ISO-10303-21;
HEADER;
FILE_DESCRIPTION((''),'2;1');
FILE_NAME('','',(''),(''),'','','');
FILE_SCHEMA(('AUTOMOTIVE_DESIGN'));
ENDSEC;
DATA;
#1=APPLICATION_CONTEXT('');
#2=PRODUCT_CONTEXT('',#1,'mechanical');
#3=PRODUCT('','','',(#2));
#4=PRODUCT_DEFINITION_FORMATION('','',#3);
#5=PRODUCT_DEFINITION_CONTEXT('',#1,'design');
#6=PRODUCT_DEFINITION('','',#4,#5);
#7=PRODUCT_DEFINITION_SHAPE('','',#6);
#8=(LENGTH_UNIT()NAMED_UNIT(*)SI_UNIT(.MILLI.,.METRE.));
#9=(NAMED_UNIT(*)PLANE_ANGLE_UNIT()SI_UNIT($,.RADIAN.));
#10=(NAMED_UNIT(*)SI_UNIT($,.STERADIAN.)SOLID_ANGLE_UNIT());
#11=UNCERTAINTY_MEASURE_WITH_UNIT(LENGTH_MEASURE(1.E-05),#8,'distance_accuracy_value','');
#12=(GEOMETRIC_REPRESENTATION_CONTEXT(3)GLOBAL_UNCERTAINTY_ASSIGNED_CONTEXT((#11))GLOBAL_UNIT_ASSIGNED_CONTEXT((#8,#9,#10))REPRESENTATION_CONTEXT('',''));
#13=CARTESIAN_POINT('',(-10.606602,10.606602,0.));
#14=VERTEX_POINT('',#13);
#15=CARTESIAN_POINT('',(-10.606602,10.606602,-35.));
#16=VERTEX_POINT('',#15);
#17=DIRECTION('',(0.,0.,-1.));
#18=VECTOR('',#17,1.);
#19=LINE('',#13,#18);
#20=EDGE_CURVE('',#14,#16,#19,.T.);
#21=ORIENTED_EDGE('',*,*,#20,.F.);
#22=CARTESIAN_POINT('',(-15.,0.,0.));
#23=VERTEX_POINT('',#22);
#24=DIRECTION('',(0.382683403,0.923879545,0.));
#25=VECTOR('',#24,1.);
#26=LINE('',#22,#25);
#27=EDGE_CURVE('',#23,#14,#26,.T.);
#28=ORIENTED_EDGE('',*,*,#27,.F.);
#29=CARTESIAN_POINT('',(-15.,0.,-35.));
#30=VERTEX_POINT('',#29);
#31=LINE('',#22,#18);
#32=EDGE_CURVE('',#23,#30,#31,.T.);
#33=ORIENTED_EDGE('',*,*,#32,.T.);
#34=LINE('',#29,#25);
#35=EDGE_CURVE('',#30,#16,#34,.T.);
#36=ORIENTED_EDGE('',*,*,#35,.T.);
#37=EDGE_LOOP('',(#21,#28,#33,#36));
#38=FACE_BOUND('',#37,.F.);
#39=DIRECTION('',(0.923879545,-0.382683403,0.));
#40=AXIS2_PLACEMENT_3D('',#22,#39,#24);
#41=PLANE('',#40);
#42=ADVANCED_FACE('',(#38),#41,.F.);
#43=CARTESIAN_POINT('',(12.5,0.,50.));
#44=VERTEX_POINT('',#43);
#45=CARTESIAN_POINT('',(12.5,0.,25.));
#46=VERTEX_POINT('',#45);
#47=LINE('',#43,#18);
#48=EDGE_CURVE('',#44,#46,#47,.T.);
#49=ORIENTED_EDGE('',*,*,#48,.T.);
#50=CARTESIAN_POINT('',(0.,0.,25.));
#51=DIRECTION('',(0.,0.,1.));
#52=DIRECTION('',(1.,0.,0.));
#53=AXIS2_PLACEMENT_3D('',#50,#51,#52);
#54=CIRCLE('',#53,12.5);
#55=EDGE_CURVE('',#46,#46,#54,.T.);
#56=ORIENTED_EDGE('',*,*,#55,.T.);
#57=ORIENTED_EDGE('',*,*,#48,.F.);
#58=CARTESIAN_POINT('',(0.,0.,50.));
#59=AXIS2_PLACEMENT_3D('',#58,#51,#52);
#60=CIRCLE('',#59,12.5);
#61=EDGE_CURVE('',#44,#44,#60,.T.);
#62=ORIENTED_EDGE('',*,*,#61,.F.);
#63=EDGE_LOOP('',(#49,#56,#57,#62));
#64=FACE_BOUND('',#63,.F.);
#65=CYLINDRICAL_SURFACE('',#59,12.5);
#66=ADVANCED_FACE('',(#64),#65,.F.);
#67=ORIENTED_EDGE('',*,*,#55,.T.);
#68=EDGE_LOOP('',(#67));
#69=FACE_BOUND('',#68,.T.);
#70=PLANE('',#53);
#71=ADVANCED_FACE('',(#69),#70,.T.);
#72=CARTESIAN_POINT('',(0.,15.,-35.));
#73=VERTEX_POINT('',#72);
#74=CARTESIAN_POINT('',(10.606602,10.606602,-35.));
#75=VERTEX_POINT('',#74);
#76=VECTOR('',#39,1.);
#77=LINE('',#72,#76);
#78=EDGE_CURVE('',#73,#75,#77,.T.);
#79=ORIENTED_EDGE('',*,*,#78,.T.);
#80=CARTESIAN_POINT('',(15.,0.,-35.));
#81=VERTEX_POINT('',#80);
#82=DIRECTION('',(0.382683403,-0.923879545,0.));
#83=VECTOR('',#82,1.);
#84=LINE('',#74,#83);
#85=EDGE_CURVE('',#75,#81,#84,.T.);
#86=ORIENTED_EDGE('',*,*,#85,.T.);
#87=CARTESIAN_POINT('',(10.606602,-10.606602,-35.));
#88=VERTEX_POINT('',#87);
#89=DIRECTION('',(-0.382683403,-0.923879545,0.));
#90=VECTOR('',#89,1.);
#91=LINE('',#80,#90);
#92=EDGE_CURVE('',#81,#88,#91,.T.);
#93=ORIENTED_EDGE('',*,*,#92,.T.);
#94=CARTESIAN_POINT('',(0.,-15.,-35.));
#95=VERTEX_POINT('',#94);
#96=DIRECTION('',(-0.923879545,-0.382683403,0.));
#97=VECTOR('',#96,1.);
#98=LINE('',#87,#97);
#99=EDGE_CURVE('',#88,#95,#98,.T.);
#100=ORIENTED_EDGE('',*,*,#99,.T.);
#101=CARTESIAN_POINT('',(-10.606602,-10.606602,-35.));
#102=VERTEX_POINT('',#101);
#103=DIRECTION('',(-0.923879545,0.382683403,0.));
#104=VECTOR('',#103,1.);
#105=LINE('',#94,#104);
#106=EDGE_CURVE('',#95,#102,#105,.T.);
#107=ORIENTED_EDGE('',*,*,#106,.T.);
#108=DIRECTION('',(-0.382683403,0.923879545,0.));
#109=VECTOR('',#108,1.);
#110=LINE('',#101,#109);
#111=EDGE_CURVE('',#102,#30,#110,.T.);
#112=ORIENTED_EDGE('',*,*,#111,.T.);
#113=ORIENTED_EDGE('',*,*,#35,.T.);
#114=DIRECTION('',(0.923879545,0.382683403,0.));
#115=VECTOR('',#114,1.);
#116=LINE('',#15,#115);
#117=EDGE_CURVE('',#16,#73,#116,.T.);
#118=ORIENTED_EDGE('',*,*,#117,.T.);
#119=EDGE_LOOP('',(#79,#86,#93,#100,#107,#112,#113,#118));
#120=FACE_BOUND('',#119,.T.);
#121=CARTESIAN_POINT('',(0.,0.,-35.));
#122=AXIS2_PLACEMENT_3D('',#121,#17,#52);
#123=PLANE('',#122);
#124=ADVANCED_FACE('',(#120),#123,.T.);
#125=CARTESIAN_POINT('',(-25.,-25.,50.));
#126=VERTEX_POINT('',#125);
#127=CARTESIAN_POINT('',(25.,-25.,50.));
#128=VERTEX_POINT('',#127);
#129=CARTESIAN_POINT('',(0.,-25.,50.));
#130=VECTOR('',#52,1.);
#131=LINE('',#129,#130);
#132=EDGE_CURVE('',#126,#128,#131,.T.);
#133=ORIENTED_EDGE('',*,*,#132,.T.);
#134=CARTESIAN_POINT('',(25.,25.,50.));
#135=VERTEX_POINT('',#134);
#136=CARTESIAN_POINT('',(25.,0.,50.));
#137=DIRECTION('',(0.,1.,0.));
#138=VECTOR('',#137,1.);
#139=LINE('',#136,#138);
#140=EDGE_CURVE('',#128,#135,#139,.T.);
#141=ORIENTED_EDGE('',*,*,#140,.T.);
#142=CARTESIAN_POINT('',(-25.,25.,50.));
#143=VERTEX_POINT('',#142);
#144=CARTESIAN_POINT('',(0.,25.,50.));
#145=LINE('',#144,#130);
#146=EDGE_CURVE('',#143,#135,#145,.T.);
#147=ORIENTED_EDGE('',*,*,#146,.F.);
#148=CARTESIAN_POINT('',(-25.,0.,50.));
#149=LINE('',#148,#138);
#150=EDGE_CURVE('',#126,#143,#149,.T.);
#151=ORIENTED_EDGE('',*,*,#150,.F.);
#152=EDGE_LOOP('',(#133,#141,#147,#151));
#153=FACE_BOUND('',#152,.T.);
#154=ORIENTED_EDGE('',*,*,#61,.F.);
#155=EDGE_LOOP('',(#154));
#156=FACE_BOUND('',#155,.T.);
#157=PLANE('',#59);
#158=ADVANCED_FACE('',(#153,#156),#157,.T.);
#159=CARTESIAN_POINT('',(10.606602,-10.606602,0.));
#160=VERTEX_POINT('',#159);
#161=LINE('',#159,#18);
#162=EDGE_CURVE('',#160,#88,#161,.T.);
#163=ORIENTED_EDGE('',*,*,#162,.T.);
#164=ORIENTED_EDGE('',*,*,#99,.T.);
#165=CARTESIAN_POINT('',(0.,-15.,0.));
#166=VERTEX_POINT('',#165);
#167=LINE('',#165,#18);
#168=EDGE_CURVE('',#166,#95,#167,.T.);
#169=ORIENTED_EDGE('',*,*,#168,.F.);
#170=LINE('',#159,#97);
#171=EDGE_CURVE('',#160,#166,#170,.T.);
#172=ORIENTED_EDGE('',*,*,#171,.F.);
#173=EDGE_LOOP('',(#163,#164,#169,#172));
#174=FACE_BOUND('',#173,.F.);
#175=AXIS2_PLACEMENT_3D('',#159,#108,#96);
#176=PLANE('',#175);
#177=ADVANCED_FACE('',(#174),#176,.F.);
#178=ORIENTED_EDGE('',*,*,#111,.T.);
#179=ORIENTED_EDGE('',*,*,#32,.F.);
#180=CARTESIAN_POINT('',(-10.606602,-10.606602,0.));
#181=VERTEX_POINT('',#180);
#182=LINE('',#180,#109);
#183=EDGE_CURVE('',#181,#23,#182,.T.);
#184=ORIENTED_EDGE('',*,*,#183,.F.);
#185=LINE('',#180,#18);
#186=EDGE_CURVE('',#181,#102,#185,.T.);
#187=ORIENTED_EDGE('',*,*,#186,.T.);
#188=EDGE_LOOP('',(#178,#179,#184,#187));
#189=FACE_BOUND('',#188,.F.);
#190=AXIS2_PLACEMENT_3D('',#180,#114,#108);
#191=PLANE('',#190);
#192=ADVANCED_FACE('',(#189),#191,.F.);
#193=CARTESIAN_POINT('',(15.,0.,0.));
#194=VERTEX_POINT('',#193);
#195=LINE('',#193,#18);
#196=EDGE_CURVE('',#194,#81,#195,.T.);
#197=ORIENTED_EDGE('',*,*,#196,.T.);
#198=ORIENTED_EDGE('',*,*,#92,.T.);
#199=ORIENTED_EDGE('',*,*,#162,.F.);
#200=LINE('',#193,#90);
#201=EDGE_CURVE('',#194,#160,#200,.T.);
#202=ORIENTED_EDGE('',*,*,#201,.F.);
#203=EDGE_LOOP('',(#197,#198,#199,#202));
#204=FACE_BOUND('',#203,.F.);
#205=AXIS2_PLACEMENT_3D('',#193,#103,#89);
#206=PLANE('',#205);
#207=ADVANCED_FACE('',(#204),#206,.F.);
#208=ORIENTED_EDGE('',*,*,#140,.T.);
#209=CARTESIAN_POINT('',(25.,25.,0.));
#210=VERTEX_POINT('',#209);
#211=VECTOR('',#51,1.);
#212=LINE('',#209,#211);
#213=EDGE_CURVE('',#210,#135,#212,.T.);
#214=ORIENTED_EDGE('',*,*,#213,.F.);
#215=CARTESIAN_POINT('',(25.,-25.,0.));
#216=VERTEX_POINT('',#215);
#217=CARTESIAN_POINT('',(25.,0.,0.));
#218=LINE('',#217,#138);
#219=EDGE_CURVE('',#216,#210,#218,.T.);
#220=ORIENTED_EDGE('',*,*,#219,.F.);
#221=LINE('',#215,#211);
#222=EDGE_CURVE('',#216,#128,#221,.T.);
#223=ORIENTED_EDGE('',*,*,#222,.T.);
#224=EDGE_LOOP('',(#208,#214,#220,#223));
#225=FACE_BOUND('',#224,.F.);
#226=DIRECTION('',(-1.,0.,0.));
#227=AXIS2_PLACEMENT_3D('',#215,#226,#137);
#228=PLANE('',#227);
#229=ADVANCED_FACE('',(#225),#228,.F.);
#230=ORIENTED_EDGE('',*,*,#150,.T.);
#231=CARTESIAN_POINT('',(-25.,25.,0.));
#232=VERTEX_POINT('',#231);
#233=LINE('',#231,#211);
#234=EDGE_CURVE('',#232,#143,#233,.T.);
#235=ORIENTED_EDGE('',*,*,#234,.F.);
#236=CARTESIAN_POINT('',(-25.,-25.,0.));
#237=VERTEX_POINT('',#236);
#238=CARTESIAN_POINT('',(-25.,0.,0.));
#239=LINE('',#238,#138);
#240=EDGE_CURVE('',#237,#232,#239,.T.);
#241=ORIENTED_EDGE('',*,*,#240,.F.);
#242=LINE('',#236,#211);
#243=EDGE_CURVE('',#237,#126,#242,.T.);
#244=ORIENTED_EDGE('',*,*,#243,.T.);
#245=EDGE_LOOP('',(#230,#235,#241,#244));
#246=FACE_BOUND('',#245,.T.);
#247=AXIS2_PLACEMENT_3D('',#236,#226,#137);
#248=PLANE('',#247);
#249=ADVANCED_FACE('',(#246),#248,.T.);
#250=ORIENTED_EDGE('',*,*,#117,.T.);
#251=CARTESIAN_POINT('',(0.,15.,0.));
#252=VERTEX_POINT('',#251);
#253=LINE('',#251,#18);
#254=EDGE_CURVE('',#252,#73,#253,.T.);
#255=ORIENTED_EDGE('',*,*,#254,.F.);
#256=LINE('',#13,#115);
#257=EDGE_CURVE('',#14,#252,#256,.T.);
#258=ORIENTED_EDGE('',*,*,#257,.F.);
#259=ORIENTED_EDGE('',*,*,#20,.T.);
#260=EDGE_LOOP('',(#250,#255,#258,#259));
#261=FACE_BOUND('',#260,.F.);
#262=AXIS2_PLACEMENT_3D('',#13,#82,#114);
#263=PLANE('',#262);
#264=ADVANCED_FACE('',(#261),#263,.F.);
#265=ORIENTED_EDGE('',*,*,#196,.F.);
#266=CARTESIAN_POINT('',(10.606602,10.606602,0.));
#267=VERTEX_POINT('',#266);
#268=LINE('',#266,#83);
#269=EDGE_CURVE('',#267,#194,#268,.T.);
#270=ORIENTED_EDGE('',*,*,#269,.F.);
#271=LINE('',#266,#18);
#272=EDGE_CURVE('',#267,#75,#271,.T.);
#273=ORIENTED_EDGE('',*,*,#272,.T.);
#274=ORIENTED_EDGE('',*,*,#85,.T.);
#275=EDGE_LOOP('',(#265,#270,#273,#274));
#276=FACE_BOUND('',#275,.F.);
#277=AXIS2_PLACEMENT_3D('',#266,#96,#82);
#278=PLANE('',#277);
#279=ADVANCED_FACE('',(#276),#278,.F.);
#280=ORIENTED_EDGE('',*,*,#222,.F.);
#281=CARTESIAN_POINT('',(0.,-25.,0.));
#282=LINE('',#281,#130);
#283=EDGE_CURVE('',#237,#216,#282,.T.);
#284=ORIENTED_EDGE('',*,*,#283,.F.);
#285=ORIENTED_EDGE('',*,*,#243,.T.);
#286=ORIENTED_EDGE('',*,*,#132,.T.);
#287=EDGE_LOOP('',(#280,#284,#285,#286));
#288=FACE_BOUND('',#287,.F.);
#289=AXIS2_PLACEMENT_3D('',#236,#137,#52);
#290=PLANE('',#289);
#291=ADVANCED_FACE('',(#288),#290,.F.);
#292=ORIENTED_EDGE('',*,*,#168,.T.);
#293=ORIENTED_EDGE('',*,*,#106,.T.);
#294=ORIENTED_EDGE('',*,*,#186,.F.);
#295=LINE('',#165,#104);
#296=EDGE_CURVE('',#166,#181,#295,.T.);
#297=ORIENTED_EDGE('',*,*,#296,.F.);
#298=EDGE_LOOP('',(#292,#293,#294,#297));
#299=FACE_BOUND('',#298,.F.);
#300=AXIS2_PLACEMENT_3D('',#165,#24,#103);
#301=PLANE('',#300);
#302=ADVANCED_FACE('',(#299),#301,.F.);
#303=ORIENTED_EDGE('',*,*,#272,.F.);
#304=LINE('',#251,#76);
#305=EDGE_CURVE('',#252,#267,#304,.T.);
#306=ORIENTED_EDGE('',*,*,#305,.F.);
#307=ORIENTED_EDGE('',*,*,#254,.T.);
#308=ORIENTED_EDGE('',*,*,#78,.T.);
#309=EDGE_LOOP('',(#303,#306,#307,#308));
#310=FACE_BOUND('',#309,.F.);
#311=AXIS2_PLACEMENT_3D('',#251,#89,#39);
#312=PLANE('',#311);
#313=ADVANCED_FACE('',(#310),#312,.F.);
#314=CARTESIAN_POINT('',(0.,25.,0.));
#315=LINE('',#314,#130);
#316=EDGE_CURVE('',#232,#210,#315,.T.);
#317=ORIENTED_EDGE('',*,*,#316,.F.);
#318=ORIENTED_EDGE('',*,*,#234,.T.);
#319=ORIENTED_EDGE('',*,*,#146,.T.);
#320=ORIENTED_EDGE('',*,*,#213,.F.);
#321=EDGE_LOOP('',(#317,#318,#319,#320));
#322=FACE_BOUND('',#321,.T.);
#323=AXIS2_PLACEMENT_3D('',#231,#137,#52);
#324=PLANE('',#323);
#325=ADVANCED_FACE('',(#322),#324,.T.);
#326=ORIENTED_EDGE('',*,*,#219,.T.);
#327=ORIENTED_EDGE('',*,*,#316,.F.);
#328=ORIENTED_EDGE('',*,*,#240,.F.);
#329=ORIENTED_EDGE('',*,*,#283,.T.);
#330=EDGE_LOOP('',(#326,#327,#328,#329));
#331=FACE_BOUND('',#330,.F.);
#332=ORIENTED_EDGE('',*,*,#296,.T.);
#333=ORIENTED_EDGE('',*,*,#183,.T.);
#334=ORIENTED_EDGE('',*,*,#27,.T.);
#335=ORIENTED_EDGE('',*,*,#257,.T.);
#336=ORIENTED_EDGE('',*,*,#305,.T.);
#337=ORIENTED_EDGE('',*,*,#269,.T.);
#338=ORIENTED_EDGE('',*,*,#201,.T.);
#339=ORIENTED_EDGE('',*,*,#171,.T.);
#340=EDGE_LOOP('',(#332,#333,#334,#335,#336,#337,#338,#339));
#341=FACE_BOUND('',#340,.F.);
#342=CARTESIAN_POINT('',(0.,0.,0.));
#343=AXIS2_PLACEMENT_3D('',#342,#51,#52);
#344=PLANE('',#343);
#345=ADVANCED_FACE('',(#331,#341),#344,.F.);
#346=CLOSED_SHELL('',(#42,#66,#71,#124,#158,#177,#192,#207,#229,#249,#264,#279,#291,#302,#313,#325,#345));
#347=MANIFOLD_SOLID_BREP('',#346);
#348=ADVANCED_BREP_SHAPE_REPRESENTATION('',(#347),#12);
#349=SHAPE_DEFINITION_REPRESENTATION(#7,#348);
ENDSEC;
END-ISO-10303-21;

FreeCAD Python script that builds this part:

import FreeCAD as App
import Part
import Sketcher

V = App.Vector
Q = App.Units.Quantity


def add_polygon(sketch, points):
    """Adds a closed chain of lines whose ends are joined by coincident constraints."""
    first, n = sketch.GeometryCount, len(points)
    for a, b in zip(points, points[1:] + points[:1]):
        sketch.addGeometry(Part.LineSegment(App.Vector(*a, 0), App.Vector(*b, 0)), False)
    for i in range(n):
        sketch.addConstraint(Sketcher.Constraint("Coincident", first + i, 2, first + (i + 1) % n, 1))

doc = App.newDocument("Part")
params = doc.addObject("Spreadsheet::Sheet", "Params")
for row, (alias, value) in enumerate([
    ("sketch1_width", "50 mm"),
    ("pad1_length", "50 mm"),
    ("sketch2_diameter", "25 mm"),
    ("pocket1_length", "25 mm"),
    ("pad2_length", "35 mm"),
], start=1):
    params.set(f"A{row}", alias)
    params.set(f"B{row}", "=" + value)
    params.setAlias(f"B{row}", alias)

body = doc.addObject("PartDesign::Body", "Body")

# Sketch on XY plane
sketch1 = body.newObject("Sketcher::SketchObject", "Sketch")
sketch1.AttachmentSupport = (doc.getObject("XY_Plane"), [""])
sketch1.MapMode = "FlatFace"
add_polygon(sketch1, [(-25, 25), (-25, -25), (25, -25), (25, 25)])  # lines 0-3
sketch1.addConstraint([
    Sketcher.Constraint("Vertical", 0),
    Sketcher.Constraint("Horizontal", 1),
    Sketcher.Constraint("Vertical", 2),
    Sketcher.Constraint("Horizontal", 3),
    Sketcher.Constraint("Symmetric", 0, 2, 2, 2, -1, 1),
    Sketcher.Constraint("Equal", 3, 0),
    Sketcher.Constraint("DistanceX", 1, 1, 1, 2, 50.0),
])
sketch1.setExpression("Constraints[10]", "Params.sketch1_width")
pad1 = body.newObject("PartDesign::Pad", "Pad")
pad1.Profile = sketch1
pad1.setExpression("Length", "Params.pad1_length")

# Sketch on XY plane
sketch2 = body.newObject("Sketcher::SketchObject", "Sketch001")
sketch2.AttachmentSupport = (doc.getObject("XY_Plane"), [""])
sketch2.MapMode = "FlatFace"
sketch2.AttachmentOffset = App.Placement(V(0, 0, 50), App.Rotation())
sketch2.addGeometry(Part.Circle(V(0, 0, 0), V(0, 0, 1), 12), False)
sketch2.addConstraint([
    Sketcher.Constraint("Coincident", 0, 3, -1, 1),
    Sketcher.Constraint("Diameter", 0, 25.0),
])
sketch2.setExpression("Constraints[1]", "Params.sketch2_diameter")
pocket1 = body.newObject("PartDesign::Pocket", "Pocket")
pocket1.Profile = sketch2
pocket1.setExpression("Length", "Params.pocket1_length")

# Sketch on XY plane
sketch3 = body.newObject("Sketcher::SketchObject", "Sketch002")
sketch3.AttachmentSupport = (doc.getObject("XY_Plane"), [""])
sketch3.MapMode = "FlatFace"
add_polygon(sketch3, [(0, -15), (-11, -11), (-15, 0), (-11, 11), (0, 15), (11, 11), (15, 0), (11, -11)])  # lines 0-7
sketch3.addConstraint([
    Sketcher.Constraint("Symmetric", 0, 2, 4, 2, -1, 1),
    Sketcher.Constraint("Symmetric", 1, 2, 5, 2, -1, 1),
    Sketcher.Constraint("Symmetric", 2, 2, 6, 2, -1, 1),
    Sketcher.Constraint("Symmetric", 3, 2, 7, 2, -1, 1),
    Sketcher.Constraint("Symmetric", 2, 2, 4, 2, -2),
    Sketcher.Constraint("PointOnObject", 1, 2, -1),
    Sketcher.Constraint("PointOnObject", 3, 2, -2),
    Sketcher.Constraint("Perpendicular", 0, 2),
    Sketcher.Constraint("Equal", 0, 1),
    Sketcher.Constraint("DistanceX", 1, 2, -1, 1, 15.0),
    Sketcher.Constraint("Angle", 0, Q("157.500002 deg")),
])
pad2 = body.newObject("PartDesign::Pad", "Pad001")
pad2.Profile = sketch3
pad2.setExpression("Length", "Params.pad2_length")
pad2.Reversed = True

doc.recompute()
